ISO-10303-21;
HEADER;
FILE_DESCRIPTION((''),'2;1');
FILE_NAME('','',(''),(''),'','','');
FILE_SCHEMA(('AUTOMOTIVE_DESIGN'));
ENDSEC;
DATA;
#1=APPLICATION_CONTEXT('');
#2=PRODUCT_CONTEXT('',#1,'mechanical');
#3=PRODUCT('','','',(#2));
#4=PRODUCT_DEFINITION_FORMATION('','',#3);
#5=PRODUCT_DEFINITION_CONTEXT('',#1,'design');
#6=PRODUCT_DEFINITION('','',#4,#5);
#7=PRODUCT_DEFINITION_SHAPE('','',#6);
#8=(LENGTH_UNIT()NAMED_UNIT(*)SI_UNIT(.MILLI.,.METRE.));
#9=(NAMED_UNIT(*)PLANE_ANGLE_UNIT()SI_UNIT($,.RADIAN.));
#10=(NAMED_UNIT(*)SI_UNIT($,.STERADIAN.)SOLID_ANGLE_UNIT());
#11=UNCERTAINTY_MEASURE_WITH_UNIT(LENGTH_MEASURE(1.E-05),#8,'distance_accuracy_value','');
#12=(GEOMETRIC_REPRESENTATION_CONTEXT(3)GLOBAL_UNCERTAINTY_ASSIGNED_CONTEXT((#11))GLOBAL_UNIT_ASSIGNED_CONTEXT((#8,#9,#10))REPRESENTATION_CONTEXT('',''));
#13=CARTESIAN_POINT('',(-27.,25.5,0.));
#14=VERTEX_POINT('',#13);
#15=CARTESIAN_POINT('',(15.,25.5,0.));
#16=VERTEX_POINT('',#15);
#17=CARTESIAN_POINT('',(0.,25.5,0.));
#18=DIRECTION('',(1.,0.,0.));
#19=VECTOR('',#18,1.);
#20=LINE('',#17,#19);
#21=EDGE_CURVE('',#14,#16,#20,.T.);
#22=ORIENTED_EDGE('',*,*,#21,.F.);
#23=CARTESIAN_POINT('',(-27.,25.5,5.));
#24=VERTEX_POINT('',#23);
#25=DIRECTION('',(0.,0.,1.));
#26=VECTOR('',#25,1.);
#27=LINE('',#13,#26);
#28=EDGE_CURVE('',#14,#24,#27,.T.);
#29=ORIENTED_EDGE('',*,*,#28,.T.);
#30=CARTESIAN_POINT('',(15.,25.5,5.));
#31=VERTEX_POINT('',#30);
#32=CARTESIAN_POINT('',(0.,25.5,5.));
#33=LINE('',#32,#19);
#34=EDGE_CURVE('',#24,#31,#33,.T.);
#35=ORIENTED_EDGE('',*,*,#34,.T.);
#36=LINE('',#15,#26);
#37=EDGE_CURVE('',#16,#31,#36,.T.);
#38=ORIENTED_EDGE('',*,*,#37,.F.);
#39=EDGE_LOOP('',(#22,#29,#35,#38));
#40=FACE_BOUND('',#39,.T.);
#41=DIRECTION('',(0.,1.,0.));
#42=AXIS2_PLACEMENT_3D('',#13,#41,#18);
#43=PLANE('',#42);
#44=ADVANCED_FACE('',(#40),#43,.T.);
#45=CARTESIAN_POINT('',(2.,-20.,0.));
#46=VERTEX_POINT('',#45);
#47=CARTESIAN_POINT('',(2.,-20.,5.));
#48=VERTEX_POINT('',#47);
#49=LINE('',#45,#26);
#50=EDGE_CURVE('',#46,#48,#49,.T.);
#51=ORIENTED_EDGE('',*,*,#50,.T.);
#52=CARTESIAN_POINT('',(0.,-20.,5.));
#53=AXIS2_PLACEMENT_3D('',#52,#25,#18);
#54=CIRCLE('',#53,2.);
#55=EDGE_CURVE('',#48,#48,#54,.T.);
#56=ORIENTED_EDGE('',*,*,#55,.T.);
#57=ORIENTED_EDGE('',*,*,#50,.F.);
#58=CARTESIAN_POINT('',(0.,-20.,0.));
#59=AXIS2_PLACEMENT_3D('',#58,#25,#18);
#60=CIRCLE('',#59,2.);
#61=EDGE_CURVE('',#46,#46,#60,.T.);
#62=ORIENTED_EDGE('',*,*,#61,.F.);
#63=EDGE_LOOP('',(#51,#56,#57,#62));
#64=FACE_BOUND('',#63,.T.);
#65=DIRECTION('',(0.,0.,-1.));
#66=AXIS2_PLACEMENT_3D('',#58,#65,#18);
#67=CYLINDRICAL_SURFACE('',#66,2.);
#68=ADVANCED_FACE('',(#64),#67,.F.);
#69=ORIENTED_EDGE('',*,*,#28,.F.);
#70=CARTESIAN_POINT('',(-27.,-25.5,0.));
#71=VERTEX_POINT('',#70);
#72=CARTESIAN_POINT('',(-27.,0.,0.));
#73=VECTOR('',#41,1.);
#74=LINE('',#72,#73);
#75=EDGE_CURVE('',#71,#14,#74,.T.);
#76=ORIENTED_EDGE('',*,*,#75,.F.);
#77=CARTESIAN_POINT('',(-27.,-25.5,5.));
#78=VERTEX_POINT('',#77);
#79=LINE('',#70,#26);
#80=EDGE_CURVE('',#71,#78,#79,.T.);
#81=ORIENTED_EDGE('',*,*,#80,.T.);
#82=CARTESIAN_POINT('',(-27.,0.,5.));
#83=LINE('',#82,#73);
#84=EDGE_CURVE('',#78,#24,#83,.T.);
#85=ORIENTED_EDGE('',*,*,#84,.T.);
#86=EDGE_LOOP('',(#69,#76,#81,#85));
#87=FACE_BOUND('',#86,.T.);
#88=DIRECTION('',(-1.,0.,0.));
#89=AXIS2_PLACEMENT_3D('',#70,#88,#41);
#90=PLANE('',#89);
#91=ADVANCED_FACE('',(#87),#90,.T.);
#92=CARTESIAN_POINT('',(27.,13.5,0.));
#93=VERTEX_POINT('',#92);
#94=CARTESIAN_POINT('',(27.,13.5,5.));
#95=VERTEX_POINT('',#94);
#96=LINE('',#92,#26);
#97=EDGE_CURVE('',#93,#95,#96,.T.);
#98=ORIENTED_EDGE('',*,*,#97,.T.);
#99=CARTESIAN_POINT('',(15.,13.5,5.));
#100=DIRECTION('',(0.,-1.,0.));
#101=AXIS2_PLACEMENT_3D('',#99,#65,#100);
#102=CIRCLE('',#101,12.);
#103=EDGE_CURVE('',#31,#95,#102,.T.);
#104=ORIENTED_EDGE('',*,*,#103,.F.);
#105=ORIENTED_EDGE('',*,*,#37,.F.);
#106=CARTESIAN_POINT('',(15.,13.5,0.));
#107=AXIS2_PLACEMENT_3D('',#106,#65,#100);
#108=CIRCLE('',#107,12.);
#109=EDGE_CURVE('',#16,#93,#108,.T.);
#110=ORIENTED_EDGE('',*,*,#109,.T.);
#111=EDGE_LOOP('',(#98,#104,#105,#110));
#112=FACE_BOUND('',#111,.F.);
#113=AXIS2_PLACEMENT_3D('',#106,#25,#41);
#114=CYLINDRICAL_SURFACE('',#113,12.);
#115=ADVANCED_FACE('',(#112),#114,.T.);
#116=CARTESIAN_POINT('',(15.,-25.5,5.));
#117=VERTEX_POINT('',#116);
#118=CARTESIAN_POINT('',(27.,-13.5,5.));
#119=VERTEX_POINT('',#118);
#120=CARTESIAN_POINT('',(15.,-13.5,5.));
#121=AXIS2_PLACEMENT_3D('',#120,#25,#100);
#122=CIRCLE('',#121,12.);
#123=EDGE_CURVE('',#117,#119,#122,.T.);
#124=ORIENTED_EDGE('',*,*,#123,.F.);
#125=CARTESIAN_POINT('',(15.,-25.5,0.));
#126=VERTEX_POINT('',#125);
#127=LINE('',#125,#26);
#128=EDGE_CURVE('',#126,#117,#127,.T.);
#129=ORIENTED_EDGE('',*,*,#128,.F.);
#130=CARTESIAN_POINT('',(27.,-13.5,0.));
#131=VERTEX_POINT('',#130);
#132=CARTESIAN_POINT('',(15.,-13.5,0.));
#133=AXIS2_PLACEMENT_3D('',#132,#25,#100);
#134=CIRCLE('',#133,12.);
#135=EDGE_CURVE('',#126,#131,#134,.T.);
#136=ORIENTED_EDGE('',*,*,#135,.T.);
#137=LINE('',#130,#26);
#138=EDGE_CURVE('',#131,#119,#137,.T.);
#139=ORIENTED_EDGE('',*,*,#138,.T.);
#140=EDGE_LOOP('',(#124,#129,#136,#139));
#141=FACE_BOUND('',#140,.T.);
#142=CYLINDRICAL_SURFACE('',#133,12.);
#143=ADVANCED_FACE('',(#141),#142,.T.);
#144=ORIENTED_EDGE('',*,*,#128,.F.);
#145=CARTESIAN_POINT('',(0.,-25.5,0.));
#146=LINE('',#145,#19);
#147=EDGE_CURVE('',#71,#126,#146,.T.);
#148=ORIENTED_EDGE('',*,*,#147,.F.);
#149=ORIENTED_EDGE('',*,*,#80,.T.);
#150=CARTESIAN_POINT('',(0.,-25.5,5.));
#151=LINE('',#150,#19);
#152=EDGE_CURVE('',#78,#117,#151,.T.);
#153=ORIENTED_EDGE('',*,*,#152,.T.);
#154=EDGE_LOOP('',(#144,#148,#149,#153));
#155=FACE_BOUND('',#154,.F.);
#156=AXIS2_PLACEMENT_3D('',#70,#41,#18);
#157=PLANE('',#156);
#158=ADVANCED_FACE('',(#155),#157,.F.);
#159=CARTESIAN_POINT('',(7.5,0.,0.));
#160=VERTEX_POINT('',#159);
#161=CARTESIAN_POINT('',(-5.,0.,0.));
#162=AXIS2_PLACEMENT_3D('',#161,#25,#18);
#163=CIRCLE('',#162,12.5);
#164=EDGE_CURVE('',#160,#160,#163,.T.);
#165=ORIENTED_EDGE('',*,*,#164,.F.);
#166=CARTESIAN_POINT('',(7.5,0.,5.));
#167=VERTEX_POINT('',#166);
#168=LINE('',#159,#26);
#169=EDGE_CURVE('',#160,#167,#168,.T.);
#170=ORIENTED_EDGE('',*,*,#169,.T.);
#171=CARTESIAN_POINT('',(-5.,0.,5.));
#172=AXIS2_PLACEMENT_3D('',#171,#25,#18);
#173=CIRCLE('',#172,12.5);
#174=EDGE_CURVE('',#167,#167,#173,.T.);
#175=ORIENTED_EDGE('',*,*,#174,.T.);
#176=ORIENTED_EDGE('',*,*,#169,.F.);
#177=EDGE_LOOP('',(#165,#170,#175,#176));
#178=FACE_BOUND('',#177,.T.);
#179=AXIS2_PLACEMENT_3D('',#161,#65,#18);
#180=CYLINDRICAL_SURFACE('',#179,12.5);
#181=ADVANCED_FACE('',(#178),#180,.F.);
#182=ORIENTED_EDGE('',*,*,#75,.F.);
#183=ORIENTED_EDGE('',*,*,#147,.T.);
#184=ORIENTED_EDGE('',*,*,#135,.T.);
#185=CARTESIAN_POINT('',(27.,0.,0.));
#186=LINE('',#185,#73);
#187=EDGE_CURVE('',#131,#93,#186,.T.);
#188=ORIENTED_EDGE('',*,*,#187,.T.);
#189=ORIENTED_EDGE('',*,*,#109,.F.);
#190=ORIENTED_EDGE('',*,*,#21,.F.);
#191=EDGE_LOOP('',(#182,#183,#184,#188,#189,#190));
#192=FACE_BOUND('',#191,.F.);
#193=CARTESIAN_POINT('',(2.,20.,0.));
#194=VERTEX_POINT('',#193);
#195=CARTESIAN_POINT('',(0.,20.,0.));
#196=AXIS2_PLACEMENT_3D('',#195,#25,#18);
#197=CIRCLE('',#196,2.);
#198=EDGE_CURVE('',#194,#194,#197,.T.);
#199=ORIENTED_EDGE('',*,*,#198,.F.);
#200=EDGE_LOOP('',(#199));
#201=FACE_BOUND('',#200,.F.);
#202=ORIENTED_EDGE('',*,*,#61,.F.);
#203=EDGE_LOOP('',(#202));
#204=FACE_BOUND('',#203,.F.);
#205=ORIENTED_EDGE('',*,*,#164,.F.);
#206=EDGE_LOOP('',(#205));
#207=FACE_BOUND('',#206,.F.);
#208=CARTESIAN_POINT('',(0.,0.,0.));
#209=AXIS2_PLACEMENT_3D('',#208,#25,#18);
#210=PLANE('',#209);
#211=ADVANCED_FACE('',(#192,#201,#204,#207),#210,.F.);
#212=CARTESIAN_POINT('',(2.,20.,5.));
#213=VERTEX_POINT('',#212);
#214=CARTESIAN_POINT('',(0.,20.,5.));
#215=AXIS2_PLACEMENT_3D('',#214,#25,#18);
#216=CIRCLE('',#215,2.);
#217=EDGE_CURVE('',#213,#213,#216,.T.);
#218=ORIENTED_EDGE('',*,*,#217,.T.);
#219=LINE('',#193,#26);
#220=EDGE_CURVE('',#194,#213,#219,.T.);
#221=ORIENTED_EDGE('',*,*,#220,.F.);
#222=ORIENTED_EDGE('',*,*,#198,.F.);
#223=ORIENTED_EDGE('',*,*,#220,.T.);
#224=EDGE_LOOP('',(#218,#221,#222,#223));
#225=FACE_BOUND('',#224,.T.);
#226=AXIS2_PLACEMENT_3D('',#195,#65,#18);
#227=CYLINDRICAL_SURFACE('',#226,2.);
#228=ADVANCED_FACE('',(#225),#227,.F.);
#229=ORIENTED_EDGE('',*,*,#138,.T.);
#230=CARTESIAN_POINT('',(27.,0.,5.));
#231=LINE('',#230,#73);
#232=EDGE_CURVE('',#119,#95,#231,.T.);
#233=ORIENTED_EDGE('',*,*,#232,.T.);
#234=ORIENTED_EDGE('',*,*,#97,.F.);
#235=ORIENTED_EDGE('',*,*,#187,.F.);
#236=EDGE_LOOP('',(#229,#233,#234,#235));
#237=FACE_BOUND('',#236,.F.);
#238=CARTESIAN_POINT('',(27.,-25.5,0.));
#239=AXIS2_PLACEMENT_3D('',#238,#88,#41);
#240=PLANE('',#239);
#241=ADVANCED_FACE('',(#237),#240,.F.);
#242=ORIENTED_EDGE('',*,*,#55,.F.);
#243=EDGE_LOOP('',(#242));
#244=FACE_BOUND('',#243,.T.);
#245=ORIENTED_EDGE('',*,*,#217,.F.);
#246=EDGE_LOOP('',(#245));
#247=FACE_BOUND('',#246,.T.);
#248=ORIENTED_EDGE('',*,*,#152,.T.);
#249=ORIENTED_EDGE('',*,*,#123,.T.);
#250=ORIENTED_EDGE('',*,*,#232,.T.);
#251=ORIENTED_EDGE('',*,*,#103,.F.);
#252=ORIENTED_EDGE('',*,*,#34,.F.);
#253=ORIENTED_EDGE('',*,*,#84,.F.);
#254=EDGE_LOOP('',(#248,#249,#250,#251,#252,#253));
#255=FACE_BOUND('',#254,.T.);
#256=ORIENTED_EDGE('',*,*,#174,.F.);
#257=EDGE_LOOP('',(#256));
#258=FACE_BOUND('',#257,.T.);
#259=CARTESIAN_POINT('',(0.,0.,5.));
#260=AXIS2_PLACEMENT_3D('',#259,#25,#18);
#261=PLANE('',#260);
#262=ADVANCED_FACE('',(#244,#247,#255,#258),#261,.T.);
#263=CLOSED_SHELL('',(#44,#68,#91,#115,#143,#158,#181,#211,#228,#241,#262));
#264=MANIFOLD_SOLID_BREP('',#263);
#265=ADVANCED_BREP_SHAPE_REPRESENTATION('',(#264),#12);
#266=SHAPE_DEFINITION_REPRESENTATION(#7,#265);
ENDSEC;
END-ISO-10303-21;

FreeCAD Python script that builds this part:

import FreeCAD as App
import Part
import Sketcher
from FreeCAD import Vector
Q = App.Units.Quantity


def edges_at(feature, points):
    """Names of the edges that pass closest to the given points."""
    edges = feature.Shape.Edges
    near = lambda p: min(range(len(edges)), key=lambda i: edges[i].distToShape(Part.Vertex(*p))[0])
    return sorted({f"Edge{near(p) + 1}" for p in points})

doc = App.newDocument("Part")
body = doc.addObject("PartDesign::Body", "Body")

sketch1 = doc.addObject("Sketcher::SketchObject", "Sketch")
body.addObject(sketch1)
sketch1.AttachmentSupport = (doc.XY_Plane, [""])
sketch1.MapMode = "FlatFace"
sketch1.addGeometry([
    Part.LineSegment(Vector(-27, 25.5, 0), Vector(-27, -25.5, 0)),
    Part.LineSegment(Vector(-27, -25.5, 0), Vector(27, -25.5, 0)),
    Part.LineSegment(Vector(27, -25.5, 0), Vector(27, 25.5, 0)),
    Part.LineSegment(Vector(27, 25.5, 0), Vector(-27, 25.5, 0)),
    Part.Circle(Vector(0, -20, 0), Vector(0, 0, 1), 2),
    Part.Circle(Vector(-5, 0, 0), Vector(0, 0, 1), 12.5),
    Part.Circle(Vector(0, 20, 0), Vector(0, 0, 1), 2),
], False)
sketch1.addConstraint([
    Sketcher.Constraint("Coincident", 0, 2, 1, 1),
    Sketcher.Constraint("Coincident", 1, 2, 2, 1),
    Sketcher.Constraint("Coincident", 2, 2, 3, 1),
    Sketcher.Constraint("Coincident", 3, 2, 0, 1),
    Sketcher.Constraint("Vertical", 0),
    Sketcher.Constraint("Horizontal", 1),
    Sketcher.Constraint("Vertical", 2),
    Sketcher.Constraint("Horizontal", 3),
    Sketcher.Constraint("Equal", 4, 6),
    Sketcher.Constraint("Symmetric", 4, 3, 6, 3, -1, 1),
    Sketcher.Constraint("Symmetric", 0, 2, 2, 2, -1, 1),
    Sketcher.Constraint("PointOnObject", 4, 3, -2),
    Sketcher.Constraint("PointOnObject", 5, 3, -1),
    Sketcher.Constraint("Diameter", 4, Q("4 mm")),
    Sketcher.Constraint("Diameter", 5, Q("25 mm")),
    Sketcher.Constraint("DistanceX", 1, 1, 1, 2, Q("54 mm")),
    Sketcher.Constraint("DistanceY", 0, 2, 0, 1, Q("51 mm")),
    Sketcher.Constraint("DistanceY", 4, 3, -1, 1, Q("20 mm")),
    Sketcher.Constraint("DistanceX", 5, 3, -1, 1, Q("5 mm")),
])
pad1 = doc.addObject("PartDesign::Pad", "Pad")
body.addObject(pad1)
pad1.Profile = sketch1
pad1.Length = 5
doc.recompute()

fillet = doc.addObject("PartDesign::Fillet", "Fillet")
body.addObject(fillet)
fillet.Base = (pad1, edges_at(pad1, [(27, -25.5, 2.5), (27, 25.5, 2.5)]))
fillet.Radius = 12

doc.recompute()
